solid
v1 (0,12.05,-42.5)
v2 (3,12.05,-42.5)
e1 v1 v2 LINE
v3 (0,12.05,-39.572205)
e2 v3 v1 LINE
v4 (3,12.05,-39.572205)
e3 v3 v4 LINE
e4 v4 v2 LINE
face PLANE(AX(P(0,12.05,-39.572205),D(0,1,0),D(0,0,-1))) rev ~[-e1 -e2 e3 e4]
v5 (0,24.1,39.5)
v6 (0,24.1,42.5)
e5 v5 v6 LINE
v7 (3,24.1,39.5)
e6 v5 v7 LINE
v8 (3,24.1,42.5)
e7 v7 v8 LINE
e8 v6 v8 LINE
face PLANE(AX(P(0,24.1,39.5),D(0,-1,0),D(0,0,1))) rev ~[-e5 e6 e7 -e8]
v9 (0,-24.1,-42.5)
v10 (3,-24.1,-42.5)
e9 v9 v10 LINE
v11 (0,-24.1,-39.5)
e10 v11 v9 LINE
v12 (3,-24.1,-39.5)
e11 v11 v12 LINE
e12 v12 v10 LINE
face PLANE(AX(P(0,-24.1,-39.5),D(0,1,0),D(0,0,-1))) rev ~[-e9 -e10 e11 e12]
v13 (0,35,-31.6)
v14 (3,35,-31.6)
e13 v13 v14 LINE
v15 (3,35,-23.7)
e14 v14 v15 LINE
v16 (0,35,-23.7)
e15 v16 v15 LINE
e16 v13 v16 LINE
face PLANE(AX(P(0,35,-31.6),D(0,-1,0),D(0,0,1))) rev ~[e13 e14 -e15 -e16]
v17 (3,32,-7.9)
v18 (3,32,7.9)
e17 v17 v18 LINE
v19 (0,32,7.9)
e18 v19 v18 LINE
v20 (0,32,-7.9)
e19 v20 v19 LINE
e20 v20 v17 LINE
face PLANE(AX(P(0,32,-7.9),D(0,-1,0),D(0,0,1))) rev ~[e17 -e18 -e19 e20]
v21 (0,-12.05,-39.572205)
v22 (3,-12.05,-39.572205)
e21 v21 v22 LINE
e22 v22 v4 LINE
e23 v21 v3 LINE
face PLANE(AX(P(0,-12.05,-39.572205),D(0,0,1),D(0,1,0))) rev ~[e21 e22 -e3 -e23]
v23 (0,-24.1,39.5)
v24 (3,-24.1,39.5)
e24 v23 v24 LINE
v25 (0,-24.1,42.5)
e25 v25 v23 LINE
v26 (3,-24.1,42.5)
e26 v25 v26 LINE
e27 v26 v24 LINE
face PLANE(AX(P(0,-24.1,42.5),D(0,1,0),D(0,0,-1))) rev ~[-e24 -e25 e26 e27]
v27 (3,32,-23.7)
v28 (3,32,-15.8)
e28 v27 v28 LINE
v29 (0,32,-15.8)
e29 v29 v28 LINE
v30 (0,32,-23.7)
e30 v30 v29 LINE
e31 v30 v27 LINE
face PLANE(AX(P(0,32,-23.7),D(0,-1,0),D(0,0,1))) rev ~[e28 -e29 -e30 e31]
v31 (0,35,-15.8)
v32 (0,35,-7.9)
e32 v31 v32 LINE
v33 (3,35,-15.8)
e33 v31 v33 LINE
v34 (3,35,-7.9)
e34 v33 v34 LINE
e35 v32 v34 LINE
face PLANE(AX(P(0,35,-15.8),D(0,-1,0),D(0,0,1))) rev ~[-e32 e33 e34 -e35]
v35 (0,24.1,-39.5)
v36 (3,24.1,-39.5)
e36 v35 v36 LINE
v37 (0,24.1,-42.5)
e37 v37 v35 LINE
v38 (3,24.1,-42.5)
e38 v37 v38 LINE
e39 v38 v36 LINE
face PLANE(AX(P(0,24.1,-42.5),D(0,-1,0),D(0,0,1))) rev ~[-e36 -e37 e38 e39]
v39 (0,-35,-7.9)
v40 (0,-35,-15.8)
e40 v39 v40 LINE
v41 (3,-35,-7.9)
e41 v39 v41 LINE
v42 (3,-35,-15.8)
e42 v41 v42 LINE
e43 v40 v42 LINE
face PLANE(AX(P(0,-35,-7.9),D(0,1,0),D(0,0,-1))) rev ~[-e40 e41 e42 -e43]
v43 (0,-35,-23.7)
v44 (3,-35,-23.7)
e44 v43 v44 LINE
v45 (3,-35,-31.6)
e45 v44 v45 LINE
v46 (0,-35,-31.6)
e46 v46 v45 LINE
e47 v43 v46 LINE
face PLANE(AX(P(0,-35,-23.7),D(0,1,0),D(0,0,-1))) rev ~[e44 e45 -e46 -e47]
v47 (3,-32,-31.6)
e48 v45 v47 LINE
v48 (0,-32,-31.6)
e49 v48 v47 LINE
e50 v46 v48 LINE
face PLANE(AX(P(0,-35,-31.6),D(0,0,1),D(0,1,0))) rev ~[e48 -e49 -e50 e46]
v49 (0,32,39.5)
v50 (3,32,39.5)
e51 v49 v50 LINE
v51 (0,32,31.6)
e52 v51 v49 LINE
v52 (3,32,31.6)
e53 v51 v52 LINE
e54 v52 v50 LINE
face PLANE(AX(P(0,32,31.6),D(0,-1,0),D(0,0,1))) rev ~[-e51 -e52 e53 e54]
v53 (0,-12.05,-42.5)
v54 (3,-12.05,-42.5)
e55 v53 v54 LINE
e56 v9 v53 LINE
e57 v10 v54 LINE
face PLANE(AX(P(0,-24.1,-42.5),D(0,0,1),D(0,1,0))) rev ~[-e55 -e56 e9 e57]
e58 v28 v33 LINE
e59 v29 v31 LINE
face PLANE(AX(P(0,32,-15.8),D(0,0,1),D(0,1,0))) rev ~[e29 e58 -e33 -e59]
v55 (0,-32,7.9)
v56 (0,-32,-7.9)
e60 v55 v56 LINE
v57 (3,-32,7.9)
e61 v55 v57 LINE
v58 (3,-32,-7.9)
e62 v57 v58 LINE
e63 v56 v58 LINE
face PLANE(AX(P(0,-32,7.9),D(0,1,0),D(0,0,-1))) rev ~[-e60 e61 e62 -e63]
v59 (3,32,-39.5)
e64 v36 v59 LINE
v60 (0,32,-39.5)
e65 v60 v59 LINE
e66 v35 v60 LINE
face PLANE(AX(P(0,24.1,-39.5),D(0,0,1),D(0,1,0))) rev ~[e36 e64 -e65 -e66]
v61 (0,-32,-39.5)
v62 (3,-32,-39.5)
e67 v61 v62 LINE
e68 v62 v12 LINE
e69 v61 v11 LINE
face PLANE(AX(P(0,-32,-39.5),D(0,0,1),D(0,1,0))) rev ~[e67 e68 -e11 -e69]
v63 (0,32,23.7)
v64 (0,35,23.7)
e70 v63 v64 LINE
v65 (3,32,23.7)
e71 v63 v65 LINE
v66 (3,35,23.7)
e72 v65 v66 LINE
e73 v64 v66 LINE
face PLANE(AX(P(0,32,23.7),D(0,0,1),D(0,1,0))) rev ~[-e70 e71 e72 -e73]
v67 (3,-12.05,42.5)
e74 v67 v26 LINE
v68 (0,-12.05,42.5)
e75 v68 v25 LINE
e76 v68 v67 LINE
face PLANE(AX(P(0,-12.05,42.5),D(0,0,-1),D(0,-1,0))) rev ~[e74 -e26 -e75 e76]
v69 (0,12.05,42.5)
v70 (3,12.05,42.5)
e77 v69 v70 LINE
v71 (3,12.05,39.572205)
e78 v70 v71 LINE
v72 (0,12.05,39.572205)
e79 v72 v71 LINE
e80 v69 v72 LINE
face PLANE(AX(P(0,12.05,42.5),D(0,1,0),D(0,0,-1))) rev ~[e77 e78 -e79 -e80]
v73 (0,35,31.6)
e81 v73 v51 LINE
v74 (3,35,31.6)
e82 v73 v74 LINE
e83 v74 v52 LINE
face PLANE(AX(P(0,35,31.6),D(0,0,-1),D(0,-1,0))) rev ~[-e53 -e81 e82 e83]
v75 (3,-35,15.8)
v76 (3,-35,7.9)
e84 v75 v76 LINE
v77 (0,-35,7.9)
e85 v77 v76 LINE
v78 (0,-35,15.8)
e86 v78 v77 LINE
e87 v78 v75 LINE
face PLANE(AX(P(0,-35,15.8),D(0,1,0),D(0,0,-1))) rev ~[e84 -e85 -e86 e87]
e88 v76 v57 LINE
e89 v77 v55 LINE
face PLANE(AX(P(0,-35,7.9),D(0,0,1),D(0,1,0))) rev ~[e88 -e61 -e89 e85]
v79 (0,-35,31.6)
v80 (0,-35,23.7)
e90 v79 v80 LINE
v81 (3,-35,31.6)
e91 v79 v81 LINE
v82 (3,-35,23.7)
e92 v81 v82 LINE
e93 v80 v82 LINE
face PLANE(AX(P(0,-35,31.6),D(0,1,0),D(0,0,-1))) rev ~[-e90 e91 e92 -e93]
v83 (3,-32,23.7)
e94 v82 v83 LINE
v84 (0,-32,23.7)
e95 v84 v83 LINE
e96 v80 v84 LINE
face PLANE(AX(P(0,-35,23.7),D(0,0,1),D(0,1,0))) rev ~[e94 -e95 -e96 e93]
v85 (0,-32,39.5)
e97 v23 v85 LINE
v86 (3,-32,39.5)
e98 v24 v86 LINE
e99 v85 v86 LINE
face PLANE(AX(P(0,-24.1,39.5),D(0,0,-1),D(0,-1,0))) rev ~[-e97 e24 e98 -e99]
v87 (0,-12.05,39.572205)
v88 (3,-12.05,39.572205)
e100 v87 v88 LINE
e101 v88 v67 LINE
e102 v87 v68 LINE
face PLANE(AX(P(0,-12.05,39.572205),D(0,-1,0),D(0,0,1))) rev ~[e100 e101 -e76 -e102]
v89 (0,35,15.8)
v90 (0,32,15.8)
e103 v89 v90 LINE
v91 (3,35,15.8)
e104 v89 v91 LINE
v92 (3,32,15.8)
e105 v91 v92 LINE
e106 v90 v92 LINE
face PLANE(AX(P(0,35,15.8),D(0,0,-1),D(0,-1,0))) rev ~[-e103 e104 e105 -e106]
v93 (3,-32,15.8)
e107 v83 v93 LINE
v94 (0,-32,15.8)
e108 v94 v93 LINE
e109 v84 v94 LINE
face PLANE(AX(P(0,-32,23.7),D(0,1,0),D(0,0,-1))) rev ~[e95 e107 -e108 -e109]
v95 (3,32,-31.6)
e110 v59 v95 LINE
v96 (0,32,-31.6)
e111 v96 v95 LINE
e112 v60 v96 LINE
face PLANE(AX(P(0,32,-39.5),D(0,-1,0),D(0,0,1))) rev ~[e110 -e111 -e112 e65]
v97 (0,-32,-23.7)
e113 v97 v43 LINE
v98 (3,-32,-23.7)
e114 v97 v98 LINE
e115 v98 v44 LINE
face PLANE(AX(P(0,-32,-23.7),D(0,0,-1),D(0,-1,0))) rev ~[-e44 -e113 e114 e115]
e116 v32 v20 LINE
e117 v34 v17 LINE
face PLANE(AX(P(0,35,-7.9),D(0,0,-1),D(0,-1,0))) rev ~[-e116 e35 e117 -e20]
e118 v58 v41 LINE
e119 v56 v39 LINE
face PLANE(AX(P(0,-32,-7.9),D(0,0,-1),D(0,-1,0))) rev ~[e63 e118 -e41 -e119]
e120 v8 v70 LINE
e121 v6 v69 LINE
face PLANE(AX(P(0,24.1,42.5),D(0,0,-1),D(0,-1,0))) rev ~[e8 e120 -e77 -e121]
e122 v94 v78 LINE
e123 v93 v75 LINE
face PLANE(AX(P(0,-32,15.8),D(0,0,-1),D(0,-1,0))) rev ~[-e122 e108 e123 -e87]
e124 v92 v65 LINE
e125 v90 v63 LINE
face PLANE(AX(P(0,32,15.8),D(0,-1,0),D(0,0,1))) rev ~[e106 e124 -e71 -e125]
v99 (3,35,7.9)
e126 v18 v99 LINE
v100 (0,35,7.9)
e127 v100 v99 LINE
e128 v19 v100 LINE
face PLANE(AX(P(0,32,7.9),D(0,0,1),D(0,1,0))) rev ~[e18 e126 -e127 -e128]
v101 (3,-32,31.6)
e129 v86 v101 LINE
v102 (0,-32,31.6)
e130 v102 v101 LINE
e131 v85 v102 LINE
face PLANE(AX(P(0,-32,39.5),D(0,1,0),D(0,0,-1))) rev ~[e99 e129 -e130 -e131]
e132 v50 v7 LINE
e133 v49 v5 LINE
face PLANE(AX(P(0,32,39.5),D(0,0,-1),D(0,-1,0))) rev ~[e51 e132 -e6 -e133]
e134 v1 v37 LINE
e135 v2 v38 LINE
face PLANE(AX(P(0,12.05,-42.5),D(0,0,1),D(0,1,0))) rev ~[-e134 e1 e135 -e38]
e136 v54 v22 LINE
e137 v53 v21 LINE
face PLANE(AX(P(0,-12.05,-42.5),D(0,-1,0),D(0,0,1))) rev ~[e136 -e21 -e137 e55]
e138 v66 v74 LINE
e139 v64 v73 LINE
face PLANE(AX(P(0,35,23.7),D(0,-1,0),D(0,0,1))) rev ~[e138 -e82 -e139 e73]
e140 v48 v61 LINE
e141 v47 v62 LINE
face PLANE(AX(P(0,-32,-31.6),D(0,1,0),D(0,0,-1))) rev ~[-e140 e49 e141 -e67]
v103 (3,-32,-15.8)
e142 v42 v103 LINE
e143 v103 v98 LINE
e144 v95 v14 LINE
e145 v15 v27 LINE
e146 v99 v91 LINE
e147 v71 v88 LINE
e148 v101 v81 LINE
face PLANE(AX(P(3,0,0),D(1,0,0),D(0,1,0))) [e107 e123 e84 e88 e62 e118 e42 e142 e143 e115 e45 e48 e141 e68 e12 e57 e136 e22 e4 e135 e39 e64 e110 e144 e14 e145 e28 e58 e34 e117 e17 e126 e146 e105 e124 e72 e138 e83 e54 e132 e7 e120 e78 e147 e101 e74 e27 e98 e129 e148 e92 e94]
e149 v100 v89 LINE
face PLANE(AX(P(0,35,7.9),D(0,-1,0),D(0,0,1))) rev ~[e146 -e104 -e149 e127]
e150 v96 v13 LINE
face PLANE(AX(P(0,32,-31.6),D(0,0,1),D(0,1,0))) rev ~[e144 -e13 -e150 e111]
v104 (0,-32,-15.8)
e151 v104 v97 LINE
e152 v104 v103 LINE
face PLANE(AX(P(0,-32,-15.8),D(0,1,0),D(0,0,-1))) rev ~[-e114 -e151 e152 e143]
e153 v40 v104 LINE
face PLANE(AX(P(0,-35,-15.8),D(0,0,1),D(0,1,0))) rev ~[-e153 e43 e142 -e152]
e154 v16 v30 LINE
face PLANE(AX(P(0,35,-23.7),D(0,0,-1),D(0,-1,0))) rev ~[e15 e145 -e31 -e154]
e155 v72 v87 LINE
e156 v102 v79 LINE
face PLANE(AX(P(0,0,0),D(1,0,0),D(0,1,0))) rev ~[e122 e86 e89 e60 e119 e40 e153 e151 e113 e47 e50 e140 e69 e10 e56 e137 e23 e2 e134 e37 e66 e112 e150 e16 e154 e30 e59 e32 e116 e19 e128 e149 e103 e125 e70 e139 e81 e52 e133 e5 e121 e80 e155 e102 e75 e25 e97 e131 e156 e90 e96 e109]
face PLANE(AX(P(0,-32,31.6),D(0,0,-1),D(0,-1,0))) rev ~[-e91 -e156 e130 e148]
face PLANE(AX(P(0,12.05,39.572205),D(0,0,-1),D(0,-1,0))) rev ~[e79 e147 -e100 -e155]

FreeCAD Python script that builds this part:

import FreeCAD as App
import Part
import Sketcher

V = App.Vector


def add_polygon(sketch, points):
    """Adds a closed chain of lines whose ends are joined by coincident constraints."""
    first, n = sketch.GeometryCount, len(points)
    for a, b in zip(points, points[1:] + points[:1]):
        sketch.addGeometry(Part.LineSegment(App.Vector(*a, 0), App.Vector(*b, 0)), False)
    for i in range(n):
        sketch.addConstraint(Sketcher.Constraint("Coincident", first + i, 2, first + (i + 1) % n, 1))

doc = App.newDocument("Part")
body = doc.addObject("PartDesign::Body", "Body")

sketch1 = doc.addObject("Sketcher::SketchObject", "Sketch")
body.addObject(sketch1)
sketch1.AttachmentSupport = (doc.YZ_Plane, [""])
sketch1.MapMode = "FlatFace"
add_polygon(sketch1, [(-12.05, 42.5), (-24.1, 42.5), (-24.1, 39.5), (-32, 39.5), (-32, 31.6), (-35, 31.6), (-35, 23.7), (-32, 23.7), (-32, 15.8), (-35, 15.8), (-35, 7.9), (-32, 7.9), (-32, -7.9), (-35, -7.9), (-35, -15.8), (-32, -15.8), (-32, -23.7), (-35, -23.7), (-35, -31.6), (-32, -31.6), (-32, -39.5), (-24.1, -39.5), (-24.1, -42.5), (-12.05, -42.5), (-12.05, -39.572205), (12.05, -39.572205), (12.05, -42.5), (24.1, -42.5), (24.1, -39.5), (32, -39.5), (32, -31.6), (35, -31.6), (35, -23.7), (32, -23.7), (32, -15.8), (35, -15.8), (35, -7.9), (32, -7.9), (32, 7.9), (35, 7.9), (35, 15.8), (32, 15.8), (32, 23.7), (35, 23.7), (35, 31.6), (32, 31.6), (32, 39.5), (24.1, 39.5), (24.1, 42.5), (12.05, 42.5), (12.05, 39.572205), (-12.05, 39.572205)])
sketch1.addConstraint([
    Sketcher.Constraint("Horizontal", 0),
    Sketcher.Constraint("Vertical", 1),
    Sketcher.Constraint("Horizontal", 2),
    Sketcher.Constraint("Vertical", 3),
    Sketcher.Constraint("Horizontal", 4),
    Sketcher.Constraint("Vertical", 5),
    Sketcher.Constraint("Horizontal", 6),
    Sketcher.Constraint("Vertical", 7),
    Sketcher.Constraint("Horizontal", 8),
    Sketcher.Constraint("Vertical", 9),
    Sketcher.Constraint("Horizontal", 10),
    Sketcher.Constraint("Vertical", 11),
    Sketcher.Constraint("Horizontal", 12),
    Sketcher.Constraint("Vertical", 13),
    Sketcher.Constraint("Horizontal", 14),
    Sketcher.Constraint("Vertical", 15),
    Sketcher.Constraint("Horizontal", 16),
    Sketcher.Constraint("Vertical", 17),
    Sketcher.Constraint("Horizontal", 18),
    Sketcher.Constraint("Vertical", 19),
    Sketcher.Constraint("Horizontal", 20),
    Sketcher.Constraint("Vertical", 21),
    Sketcher.Constraint("Horizontal", 22),
    Sketcher.Constraint("Vertical", 23),
    Sketcher.Constraint("Horizontal", 24),
    Sketcher.Constraint("Vertical", 25),
    Sketcher.Constraint("Horizontal", 26),
    Sketcher.Constraint("Vertical", 27),
    Sketcher.Constraint("Horizontal", 28),
    Sketcher.Constraint("Vertical", 29),
    Sketcher.Constraint("Horizontal", 30),
    Sketcher.Constraint("Vertical", 31),
    Sketcher.Constraint("Horizontal", 32),
    Sketcher.Constraint("Vertical", 33),
    Sketcher.Constraint("Horizontal", 34),
    Sketcher.Constraint("Vertical", 35),
    Sketcher.Constraint("Horizontal", 36),
    Sketcher.Constraint("Vertical", 37),
    Sketcher.Constraint("Horizontal", 38),
    Sketcher.Constraint("Vertical", 39),
    Sketcher.Constraint("Horizontal", 40),
    Sketcher.Constraint("Vertical", 41),
    Sketcher.Constraint("Horizontal", 42),
    Sketcher.Constraint("Vertical", 43),
    Sketcher.Constraint("Horizontal", 44),
    Sketcher.Constraint("Vertical", 45),
    Sketcher.Constraint("Horizontal", 46),
    Sketcher.Constraint("Vertical", 47),
    Sketcher.Constraint("Horizontal", 48),
    Sketcher.Constraint("Vertical", 49),
    Sketcher.Constraint("Horizontal", 50),
    Sketcher.Constraint("Vertical", 51),
    Sketcher.Constraint("Symmetric", 0, 2, 26, 2, -1, 1),
    Sketcher.Constraint("Symmetric", 2, 2, 28, 2, -1, 1),
    Sketcher.Constraint("Symmetric", 4, 2, 30, 2, -1, 1),
    Sketcher.Constraint("Symmetric", 6, 2, 32, 2, -1, 1),
    Sketcher.Constraint("Symmetric", 8, 2, 34, 2, -1, 1),
    Sketcher.Constraint("Symmetric", 10, 2, 36, 2, -1, 1),
    Sketcher.Constraint("Symmetric", 12, 2, 38, 2, -1, 1),
    Sketcher.Constraint("Symmetric", 14, 2, 40, 2, -1, 1),
    Sketcher.Constraint("Symmetric", 16, 2, 42, 2, -1, 1),
    Sketcher.Constraint("Symmetric", 18, 2, 44, 2, -1, 1),
    Sketcher.Constraint("Symmetric", 20, 2, 46, 2, -1, 1),
    Sketcher.Constraint("Symmetric", 22, 2, 48, 2, -1, 1),
    Sketcher.Constraint("Symmetric", 24, 2, 50, 2, -1, 1),
    Sketcher.Constraint("Symmetric", 22, 2, 25, 2, -2),
    Sketcher.Constraint("Symmetric", 20, 2, 27, 2, -2),
    Sketcher.Constraint("Symmetric", 18, 2, 29, 2, -2),
    Sketcher.Constraint("Symmetric", 16, 2, 31, 2, -2),
    Sketcher.Constraint("Symmetric", 14, 2, 33, 2, -2),
    Sketcher.Constraint("Symmetric", 12, 2, 35, 2, -2),
    Sketcher.Constraint("Vertical", 3, 2, 6, 2),
    Sketcher.Constraint("Vertical", 5, 2, 8, 2),
    Sketcher.Constraint("Vertical", 7, 2, 10, 2),
    Sketcher.Constraint("Equal", 44, 1),
    Sketcher.Constraint("Equal", 46, 3),
    Sketcher.Constraint("Equal", 3, 5),
    Sketcher.Constraint("Equal", 5, 7),
    Sketcher.Constraint("Equal", 7, 9),
    Sketcher.Constraint("DistanceX", 4, 2, 4, 1, 3.0),
    Sketcher.Constraint("DistanceX", 2, 2, 2, 1, 7.9),
    Sketcher.Constraint("DistanceX", 24, 1, 24, 2, 24.1),
    Sketcher.Constraint("DistanceY", 11, 2, 11, 1, 15.8),
    Sketcher.Constraint("DistanceX", 2, 2, -1, 1, 32.0),
    Sketcher.Constraint("DistanceY", 23, 1, 23, 2, 2.927795),
])
pad1 = doc.addObject("PartDesign::Pad", "Pad")
body.addObject(pad1)
pad1.Profile = sketch1
pad1.Length = 3

doc.recompute()
